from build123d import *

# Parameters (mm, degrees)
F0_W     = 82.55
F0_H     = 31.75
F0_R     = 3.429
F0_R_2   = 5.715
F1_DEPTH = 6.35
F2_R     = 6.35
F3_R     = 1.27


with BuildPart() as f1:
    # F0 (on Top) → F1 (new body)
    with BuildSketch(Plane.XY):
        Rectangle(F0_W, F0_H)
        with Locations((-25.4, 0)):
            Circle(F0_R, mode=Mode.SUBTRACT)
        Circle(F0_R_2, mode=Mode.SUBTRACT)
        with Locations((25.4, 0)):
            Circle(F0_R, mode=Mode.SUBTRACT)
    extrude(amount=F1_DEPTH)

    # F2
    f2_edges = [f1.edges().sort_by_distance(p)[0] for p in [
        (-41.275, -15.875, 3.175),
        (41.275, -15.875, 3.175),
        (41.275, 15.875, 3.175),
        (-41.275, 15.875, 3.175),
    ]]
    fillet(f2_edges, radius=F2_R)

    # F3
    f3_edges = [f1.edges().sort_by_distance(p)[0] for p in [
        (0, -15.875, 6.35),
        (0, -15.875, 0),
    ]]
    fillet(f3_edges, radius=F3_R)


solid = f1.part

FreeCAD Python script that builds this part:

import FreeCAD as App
import Part
import Sketcher

V = App.Vector
Q = App.Units.Quantity


def edges_at(feature, points):
    """Names of the edges that pass closest to the given points."""
    edges = feature.Shape.Edges
    near = lambda p: min(range(len(edges)), key=lambda i: edges[i].distToShape(Part.Vertex(*p))[0])
    return sorted({f"Edge{near(p) + 1}" for p in points})

doc = App.newDocument("Part")
body = doc.addObject("PartDesign::Body", "Body")

sketch1 = body.newObject("Sketcher::SketchObject", "Sketch")
sketch1.AttachmentSupport = (doc.getObject("XY_Plane"), [""])
sketch1.MapMode = "FlatFace"
sketch1.addGeometry([
    Part.LineSegment(V(-41.3, 15.9, 0), V(-41.3, -15.9, 0)),
    Part.LineSegment(V(-41.3, -15.9, 0), V(41.3, -15.9, 0)),
    Part.LineSegment(V(41.3, -15.9, 0), V(41.3, 15.9, 0)),
    Part.LineSegment(V(41.3, 15.9, 0), V(-41.3, 15.9, 0)),
    Part.Circle(V(-25.4, 0, 0), V(0, 0, 1), 3.4),
    Part.Circle(V(0, 0, 0), V(0, 0, 1), 5.7),
    Part.Circle(V(25.4, 0, 0), V(0, 0, 1), 3.4),
], False)
sketch1.addConstraint([
    Sketcher.Constraint("Coincident", 0, 2, 1, 1),
    Sketcher.Constraint("Coincident", 1, 2, 2, 1),
    Sketcher.Constraint("Coincident", 2, 2, 3, 1),
    Sketcher.Constraint("Coincident", 3, 2, 0, 1),
    Sketcher.Constraint("Vertical", 0),
    Sketcher.Constraint("Horizontal", 1),
    Sketcher.Constraint("Vertical", 2),
    Sketcher.Constraint("Horizontal", 3),
    Sketcher.Constraint("Coincident", 5, 3, -1, 1),
    Sketcher.Constraint("Equal", 4, 6),
    Sketcher.Constraint("Symmetric", 4, 3, 6, 3, -1, 1),
    Sketcher.Constraint("Symmetric", 0, 2, 2, 2, -1, 1),
    Sketcher.Constraint("PointOnObject", 4, 3, -1),
    Sketcher.Constraint("Diameter", 4, Q("0.27 in")),
    Sketcher.Constraint("Diameter", 5, Q("0.45 in")),
    Sketcher.Constraint("DistanceX", 4, 3, -1, 1, Q("1 in")),
    Sketcher.Constraint("DistanceX", 1, 1, 1, 2, Q("3.25 in")),
    Sketcher.Constraint("DistanceY", 0, 2, 0, 1, Q("1.25 in")),
])
pad1 = body.newObject("PartDesign::Pad", "Pad")
pad1.Profile = sketch1
pad1.Length = Q("0.25 in")
doc.recompute()

fillet = body.newObject("PartDesign::Fillet", "Fillet")
fillet.Base = (pad1, edges_at(pad1, [
    (-41.275, -15.875, 3.175),
    (41.275, -15.875, 3.175),
    (41.275, 15.875, 3.175),
    (-41.275, 15.875, 3.175),
]))
fillet.Radius = Q("0.25 in")
doc.recompute()

fillet2 = body.newObject("PartDesign::Fillet", "Fillet001")
fillet2.Base = (fillet, edges_at(fillet, [(0, -15.875, 6.35), (0, -15.875, 0)]))
fillet2.Radius = Q("0.05 in")

doc.recompute()
